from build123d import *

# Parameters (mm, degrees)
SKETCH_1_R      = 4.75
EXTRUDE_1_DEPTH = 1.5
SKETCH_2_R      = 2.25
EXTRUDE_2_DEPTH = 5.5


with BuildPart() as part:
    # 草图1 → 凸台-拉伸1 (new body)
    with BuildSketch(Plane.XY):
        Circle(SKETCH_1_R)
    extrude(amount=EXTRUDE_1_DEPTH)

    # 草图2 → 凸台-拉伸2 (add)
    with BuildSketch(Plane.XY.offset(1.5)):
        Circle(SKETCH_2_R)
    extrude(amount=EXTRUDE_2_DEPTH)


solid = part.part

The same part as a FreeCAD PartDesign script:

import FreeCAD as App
import Part
import Sketcher
Q = App.Units.Quantity

doc = App.newDocument("Part")
params = doc.addObject("Spreadsheet::Sheet", "Params")
for row, (alias, value) in enumerate([
    ("sketch1_diameter", "9.5 mm"),
    ("pad1_length", "1.5 mm"),
    ("sketch2_diameter", "4.5 mm"),
    ("pad2_length", "5.5 mm"),
], start=1):
    params.set(f"A{row}", alias)
    params.set(f"B{row}", "=" + value)
    params.setAlias(f"B{row}", alias)

body = doc.addObject("PartDesign::Body", "Body")

sketch1 = body.newObject("Sketcher::SketchObject", "Sketch")
sketch1.AttachmentSupport = (doc.getObject("XY_Plane"), [""])
sketch1.MapMode = "FlatFace"
sketch1.addGeometry(Part.Circle(App.Vector(0, 0, 0), App.Vector(0, 0, 1), 4.75), False)
sketch1.addConstraint([
    Sketcher.Constraint("Coincident", 0, 3, -1, 1),
    Sketcher.Constraint("Diameter", 0, Q("9.5 mm")),
])
sketch1.setExpression("Constraints[1]", "Params.sketch1_diameter")
pad1 = body.newObject("PartDesign::Pad", "Pad")
pad1.Profile = sketch1
pad1.setExpression("Length", "Params.pad1_length")

sketch2 = body.newObject("Sketcher::SketchObject", "Sketch001")
sketch2.AttachmentSupport = (doc.getObject("XY_Plane"), [""])
sketch2.MapMode = "FlatFace"
sketch2.AttachmentOffset = App.Placement(App.Vector(0, 0, 1.5), App.Rotation())
sketch2.addGeometry(Part.Circle(App.Vector(0, 0, 0), App.Vector(0, 0, 1), 2.25), False)
sketch2.addConstraint([
    Sketcher.Constraint("Coincident", 0, 3, -1, 1),
    Sketcher.Constraint("Diameter", 0, Q("4.5 mm")),
])
sketch2.setExpression("Constraints[1]", "Params.sketch2_diameter")
pad2 = body.newObject("PartDesign::Pad", "Pad001")
pad2.Profile = sketch2
pad2.setExpression("Length", "Params.pad2_length")

doc.recompute()
